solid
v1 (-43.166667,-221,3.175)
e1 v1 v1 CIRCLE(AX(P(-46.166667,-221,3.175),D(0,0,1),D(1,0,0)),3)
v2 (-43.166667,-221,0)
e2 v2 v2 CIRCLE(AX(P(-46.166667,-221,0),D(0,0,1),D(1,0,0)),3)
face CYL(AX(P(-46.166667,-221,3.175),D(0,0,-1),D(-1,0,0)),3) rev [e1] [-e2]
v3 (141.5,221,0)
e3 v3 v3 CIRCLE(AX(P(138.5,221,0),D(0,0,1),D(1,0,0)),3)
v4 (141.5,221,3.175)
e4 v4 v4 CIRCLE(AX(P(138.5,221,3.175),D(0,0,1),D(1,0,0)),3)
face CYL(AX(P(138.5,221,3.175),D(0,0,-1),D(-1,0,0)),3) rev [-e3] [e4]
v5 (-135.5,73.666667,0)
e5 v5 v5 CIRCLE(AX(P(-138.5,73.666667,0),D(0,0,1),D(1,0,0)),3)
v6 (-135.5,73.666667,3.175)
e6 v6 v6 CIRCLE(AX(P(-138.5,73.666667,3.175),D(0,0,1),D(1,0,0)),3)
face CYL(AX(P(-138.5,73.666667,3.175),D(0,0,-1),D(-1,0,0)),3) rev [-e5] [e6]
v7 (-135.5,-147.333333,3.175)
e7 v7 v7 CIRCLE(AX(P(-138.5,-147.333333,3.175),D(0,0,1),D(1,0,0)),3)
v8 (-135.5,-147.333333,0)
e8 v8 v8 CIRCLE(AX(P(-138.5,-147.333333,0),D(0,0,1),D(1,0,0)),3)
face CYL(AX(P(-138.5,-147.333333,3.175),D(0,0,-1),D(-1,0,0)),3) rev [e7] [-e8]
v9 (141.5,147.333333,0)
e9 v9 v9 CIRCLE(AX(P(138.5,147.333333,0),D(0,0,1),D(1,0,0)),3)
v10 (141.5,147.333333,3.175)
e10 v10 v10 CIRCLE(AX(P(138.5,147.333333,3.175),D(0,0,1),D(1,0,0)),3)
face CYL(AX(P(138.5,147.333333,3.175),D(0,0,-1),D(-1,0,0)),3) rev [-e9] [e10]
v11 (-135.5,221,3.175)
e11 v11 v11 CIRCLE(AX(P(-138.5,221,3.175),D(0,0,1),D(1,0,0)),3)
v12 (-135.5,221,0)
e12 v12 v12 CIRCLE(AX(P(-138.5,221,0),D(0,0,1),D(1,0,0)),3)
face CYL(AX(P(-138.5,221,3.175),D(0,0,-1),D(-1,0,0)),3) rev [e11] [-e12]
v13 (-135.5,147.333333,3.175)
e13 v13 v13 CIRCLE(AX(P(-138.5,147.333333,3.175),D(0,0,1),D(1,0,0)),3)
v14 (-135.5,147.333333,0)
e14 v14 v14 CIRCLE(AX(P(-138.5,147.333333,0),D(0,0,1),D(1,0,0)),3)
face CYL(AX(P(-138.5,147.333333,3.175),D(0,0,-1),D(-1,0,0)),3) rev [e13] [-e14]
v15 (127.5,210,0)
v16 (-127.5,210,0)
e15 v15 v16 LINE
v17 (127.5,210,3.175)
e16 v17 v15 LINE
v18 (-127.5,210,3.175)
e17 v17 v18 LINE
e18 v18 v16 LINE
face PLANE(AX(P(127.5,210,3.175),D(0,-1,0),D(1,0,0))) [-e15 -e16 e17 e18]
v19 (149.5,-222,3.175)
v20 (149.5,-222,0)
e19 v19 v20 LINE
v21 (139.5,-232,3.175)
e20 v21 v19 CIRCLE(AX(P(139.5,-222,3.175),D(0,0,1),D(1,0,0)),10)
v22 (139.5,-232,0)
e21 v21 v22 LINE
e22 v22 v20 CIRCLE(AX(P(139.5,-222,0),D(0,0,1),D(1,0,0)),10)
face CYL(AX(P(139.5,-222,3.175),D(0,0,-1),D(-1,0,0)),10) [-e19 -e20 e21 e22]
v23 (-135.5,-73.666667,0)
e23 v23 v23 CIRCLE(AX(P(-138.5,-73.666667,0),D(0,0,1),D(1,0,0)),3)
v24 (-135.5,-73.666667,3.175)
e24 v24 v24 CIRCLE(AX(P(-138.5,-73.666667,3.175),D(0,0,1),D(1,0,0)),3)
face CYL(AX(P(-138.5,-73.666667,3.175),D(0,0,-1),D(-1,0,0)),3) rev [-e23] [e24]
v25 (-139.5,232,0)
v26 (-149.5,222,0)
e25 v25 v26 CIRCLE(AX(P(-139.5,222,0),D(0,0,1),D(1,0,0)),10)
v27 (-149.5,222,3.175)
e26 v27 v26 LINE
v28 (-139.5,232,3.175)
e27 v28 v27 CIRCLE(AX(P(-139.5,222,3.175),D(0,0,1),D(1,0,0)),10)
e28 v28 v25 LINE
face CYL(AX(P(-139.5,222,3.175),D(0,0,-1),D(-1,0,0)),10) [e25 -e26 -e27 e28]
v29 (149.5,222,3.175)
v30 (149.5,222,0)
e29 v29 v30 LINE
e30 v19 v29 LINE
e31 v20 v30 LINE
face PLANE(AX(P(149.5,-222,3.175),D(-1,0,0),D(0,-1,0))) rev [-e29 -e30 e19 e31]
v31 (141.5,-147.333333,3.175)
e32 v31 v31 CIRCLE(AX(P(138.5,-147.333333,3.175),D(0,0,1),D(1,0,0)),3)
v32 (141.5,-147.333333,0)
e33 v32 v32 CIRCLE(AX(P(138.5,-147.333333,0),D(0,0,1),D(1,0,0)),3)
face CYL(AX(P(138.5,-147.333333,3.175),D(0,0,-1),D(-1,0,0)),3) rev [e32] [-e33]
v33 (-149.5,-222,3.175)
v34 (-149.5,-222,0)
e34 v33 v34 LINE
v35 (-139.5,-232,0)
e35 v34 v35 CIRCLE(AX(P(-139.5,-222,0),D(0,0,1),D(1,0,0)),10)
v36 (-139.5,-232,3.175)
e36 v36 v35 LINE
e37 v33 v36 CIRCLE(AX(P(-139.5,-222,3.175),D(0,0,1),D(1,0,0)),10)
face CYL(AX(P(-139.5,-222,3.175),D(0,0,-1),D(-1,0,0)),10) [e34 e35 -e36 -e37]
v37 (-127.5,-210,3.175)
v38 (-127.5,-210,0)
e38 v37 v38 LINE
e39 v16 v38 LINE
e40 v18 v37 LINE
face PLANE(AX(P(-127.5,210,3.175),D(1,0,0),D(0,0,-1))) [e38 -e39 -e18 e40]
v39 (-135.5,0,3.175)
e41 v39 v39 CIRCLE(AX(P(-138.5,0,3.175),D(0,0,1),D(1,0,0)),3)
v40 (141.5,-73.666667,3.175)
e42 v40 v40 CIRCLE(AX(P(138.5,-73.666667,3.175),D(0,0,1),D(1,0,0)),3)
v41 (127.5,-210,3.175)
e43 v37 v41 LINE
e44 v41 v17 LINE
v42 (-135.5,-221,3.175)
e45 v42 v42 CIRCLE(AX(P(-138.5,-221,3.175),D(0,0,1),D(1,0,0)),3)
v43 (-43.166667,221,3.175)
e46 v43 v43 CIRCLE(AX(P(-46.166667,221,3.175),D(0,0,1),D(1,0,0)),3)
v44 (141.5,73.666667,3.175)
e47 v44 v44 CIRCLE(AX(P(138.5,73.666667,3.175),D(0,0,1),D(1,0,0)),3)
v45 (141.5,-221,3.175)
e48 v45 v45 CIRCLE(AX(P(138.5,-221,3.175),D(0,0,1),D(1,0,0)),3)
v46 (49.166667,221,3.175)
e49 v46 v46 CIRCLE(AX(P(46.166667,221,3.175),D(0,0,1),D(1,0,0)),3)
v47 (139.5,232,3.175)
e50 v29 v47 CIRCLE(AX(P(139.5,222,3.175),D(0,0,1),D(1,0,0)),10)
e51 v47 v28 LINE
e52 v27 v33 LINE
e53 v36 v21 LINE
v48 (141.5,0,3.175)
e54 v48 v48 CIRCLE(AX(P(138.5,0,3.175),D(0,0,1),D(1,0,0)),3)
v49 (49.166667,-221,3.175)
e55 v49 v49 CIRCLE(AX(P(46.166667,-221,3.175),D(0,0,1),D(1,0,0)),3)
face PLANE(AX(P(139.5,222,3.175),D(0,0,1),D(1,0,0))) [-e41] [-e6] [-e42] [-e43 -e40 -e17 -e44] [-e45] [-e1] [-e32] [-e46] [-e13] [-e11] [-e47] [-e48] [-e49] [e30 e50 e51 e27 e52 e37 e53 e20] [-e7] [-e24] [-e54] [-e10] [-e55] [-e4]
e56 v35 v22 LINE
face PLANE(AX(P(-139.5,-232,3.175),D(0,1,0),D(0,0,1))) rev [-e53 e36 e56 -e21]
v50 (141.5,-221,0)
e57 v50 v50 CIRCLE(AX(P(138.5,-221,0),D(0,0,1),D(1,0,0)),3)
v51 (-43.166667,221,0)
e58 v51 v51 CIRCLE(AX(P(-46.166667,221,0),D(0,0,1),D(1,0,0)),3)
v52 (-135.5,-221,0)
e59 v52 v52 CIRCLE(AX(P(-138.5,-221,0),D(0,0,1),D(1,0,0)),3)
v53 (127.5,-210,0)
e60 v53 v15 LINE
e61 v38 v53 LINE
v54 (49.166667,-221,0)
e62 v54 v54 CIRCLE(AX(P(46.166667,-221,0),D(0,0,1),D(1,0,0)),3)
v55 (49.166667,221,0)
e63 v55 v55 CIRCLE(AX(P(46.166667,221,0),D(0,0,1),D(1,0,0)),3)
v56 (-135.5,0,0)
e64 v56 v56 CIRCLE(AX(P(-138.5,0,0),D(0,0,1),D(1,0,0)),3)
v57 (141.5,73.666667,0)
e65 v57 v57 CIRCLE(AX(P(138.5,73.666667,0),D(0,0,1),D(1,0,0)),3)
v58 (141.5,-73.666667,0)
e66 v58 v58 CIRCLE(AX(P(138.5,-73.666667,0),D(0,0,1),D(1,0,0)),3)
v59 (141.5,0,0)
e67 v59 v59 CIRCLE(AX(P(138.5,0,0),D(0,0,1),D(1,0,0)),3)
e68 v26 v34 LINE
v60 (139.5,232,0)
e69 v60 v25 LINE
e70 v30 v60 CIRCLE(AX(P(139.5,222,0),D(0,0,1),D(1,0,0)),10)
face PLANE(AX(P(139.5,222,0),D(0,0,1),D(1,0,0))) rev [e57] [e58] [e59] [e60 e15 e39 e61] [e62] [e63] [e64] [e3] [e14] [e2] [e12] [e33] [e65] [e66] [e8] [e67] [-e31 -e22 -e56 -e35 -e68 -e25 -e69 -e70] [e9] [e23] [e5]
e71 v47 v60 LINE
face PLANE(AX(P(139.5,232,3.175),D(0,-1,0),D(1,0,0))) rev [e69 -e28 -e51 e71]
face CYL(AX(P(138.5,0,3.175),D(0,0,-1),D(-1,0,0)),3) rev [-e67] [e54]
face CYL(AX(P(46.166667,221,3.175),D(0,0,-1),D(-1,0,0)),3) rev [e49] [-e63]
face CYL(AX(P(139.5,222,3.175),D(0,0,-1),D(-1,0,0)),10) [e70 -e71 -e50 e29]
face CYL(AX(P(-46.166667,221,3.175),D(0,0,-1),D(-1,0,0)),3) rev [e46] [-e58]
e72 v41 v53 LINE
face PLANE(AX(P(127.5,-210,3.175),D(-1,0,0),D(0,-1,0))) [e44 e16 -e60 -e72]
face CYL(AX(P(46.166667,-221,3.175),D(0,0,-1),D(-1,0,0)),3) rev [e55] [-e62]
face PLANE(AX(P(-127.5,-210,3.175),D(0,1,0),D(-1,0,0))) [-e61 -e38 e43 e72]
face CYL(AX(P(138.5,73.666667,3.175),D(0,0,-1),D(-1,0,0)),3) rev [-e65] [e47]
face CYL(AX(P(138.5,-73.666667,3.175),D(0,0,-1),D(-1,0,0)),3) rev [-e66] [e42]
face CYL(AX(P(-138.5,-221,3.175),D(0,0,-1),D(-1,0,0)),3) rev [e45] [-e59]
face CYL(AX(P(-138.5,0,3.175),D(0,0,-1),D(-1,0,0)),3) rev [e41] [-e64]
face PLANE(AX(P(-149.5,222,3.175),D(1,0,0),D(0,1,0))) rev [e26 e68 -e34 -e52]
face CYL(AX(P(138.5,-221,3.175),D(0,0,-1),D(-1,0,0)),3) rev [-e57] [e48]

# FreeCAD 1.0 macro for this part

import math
import FreeCAD as App
import Part
import Sketcher

V = App.Vector


def add_polygon(sketch, points):
    """Adds a closed chain of lines whose ends are joined by coincident constraints."""
    first, n = sketch.GeometryCount, len(points)
    for a, b in zip(points, points[1:] + points[:1]):
        sketch.addGeometry(Part.LineSegment(App.Vector(*a, 0), App.Vector(*b, 0)), False)
    for i in range(n):
        sketch.addConstraint(Sketcher.Constraint("Coincident", first + i, 2, first + (i + 1) % n, 1))

doc = App.newDocument("Part")
body = doc.addObject("PartDesign::Body", "Body")

# Sketch on XY plane
sketch1 = doc.addObject("Sketcher::SketchObject", "Sketch")
body.addObject(sketch1)
sketch1.AttachmentSupport = (doc.XY_Plane, [""])
sketch1.MapMode = "FlatFace"
sketch1.addGeometry(Part.LineSegment(V(139.5, 232, 0), V(-139.5, 232, 0)), False)  # 0
sketch1.addGeometry(Part.ArcOfCircle(Part.Circle(V(-139.5, 222, 0), V(0, 0, 1), 10), math.radians(90), math.radians(180)), False)  # 1
sketch1.addGeometry(Part.LineSegment(V(-149.5, 222, 0), V(-149.5, -222, 0)), False)  # 2
sketch1.addGeometry(Part.ArcOfCircle(Part.Circle(V(-139.5, -222, 0), V(0, 0, 1), 10), math.radians(180), math.radians(270)), False)  # 3
sketch1.addGeometry(Part.LineSegment(V(-139.5, -232, 0), V(139.5, -232, 0)), False)  # 4
sketch1.addGeometry(Part.ArcOfCircle(Part.Circle(V(139.5, -222, 0), V(0, 0, 1), 10), math.radians(-90), math.radians(0)), False)  # 5
sketch1.addGeometry(Part.LineSegment(V(149.5, -222, 0), V(149.5, 222, 0)), False)  # 6
sketch1.addGeometry(Part.ArcOfCircle(Part.Circle(V(139.5, 222, 0), V(0, 0, 1), 10), math.radians(0), math.radians(90)), False)  # 7
sketch1.addGeometry(Part.Circle(V(-138.5, -221, 0), V(0, 0, 1), 3), False)  # 8
sketch1.addGeometry(Part.Circle(V(-138.5, -147.333333, 0), V(0, 0, 1), 3), False)  # 9
sketch1.addGeometry(Part.Circle(V(-46.166667, -221, 0), V(0, 0, 1), 3), False)  # 10
sketch1.addGeometry(Part.Circle(V(-138.5, -73.666667, 0), V(0, 0, 1), 3), False)  # 11
sketch1.addGeometry(Part.Circle(V(46.166667, -221, 0), V(0, 0, 1), 3), False)  # 12
sketch1.addGeometry(Part.Circle(V(138.5, -221, 0), V(0, 0, 1), 3), False)  # 13
sketch1.addGeometry(Part.Circle(V(138.5, -147.333333, 0), V(0, 0, 1), 3), False)  # 14
sketch1.addGeometry(Part.Circle(V(138.5, -73.666667, 0), V(0, 0, 1), 3), False)  # 15
sketch1.addGeometry(Part.Circle(V(-138.5, 0, 0), V(0, 0, 1), 3), False)  # 16
sketch1.addGeometry(Part.Circle(V(-138.5, 73.666667, 0), V(0, 0, 1), 3), False)  # 17
sketch1.addGeometry(Part.Circle(V(-138.5, 147.333333, 0), V(0, 0, 1), 3), False)  # 18
sketch1.addGeometry(Part.Circle(V(-138.5, 221, 0), V(0, 0, 1), 3), False)  # 19
sketch1.addGeometry(Part.Circle(V(-46.166667, 221, 0), V(0, 0, 1), 3), False)  # 20
add_polygon(sketch1, [(127.5, -210), (-127.5, -210), (-127.5, 210), (127.5, 210)])  # lines 21-24
sketch1.addGeometry(Part.Circle(V(138.5, 0, 0), V(0, 0, 1), 3), False)  # 25
sketch1.addGeometry(Part.Circle(V(138.5, 73.666667, 0), V(0, 0, 1), 3), False)  # 26
sketch1.addGeometry(Part.Circle(V(46.166667, 221, 0), V(0, 0, 1), 3), False)  # 27
sketch1.addGeometry(Part.Circle(V(138.5, 147.333333, 0), V(0, 0, 1), 3), False)  # 28
sketch1.addGeometry(Part.Circle(V(138.5, 221, 0), V(0, 0, 1), 3), False)  # 29
sketch1.addConstraint(Sketcher.Constraint("Tangent", 0, 2, 1, 1))
sketch1.addConstraint(Sketcher.Constraint("Tangent", 1, 2, 2, 1))
sketch1.addConstraint(Sketcher.Constraint("Tangent", 2, 2, 3, 1))
sketch1.addConstraint(Sketcher.Constraint("Tangent", 3, 2, 4, 1))
sketch1.addConstraint(Sketcher.Constraint("Tangent", 4, 2, 5, 1))
sketch1.addConstraint(Sketcher.Constraint("Tangent", 5, 2, 6, 1))
sketch1.addConstraint(Sketcher.Constraint("Tangent", 6, 2, 7, 1))
sketch1.addConstraint(Sketcher.Constraint("Tangent", 7, 2, 0, 1))
sketch1.addConstraint(Sketcher.Constraint("Horizontal", 0))
sketch1.addConstraint(Sketcher.Constraint("Vertical", 2))
sketch1.addConstraint(Sketcher.Constraint("Horizontal", 4))
sketch1.addConstraint(Sketcher.Constraint("Vertical", 6))
sketch1.addConstraint(Sketcher.Constraint("Horizontal", 21))
sketch1.addConstraint(Sketcher.Constraint("Vertical", 22))
sketch1.addConstraint(Sketcher.Constraint("Horizontal", 23))
sketch1.addConstraint(Sketcher.Constraint("Vertical", 24))
sketch1.addConstraint(Sketcher.Constraint("Equal", 1, 3))
sketch1.addConstraint(Sketcher.Constraint("Equal", 3, 5))
sketch1.addConstraint(Sketcher.Constraint("Equal", 5, 7))
sketch1.addConstraint(Sketcher.Constraint("Equal", 8, 9))
sketch1.addConstraint(Sketcher.Constraint("Equal", 9, 10))
sketch1.addConstraint(Sketcher.Constraint("Equal", 10, 11))
sketch1.addConstraint(Sketcher.Constraint("Equal", 11, 12))
sketch1.addConstraint(Sketcher.Constraint("Equal", 12, 13))
sketch1.addConstraint(Sketcher.Constraint("Equal", 13, 14))
sketch1.addConstraint(Sketcher.Constraint("Equal", 14, 15))
sketch1.addConstraint(Sketcher.Constraint("Equal", 15, 16))
sketch1.addConstraint(Sketcher.Constraint("Equal", 16, 17))
sketch1.addConstraint(Sketcher.Constraint("Equal", 17, 18))
sketch1.addConstraint(Sketcher.Constraint("Equal", 18, 19))
sketch1.addConstraint(Sketcher.Constraint("Equal", 19, 20))
sketch1.addConstraint(Sketcher.Constraint("Equal", 20, 25))
sketch1.addConstraint(Sketcher.Constraint("Equal", 25, 26))
sketch1.addConstraint(Sketcher.Constraint("Equal", 26, 27))
sketch1.addConstraint(Sketcher.Constraint("Equal", 27, 28))
sketch1.addConstraint(Sketcher.Constraint("Equal", 28, 29))
sketch1.addConstraint(Sketcher.Constraint("Symmetric", 1, 3, 5, 3, -1, 1))
sketch1.addConstraint(Sketcher.Constraint("Symmetric", 15, 3, 17, 3, -1, 1))
sketch1.addConstraint(Sketcher.Constraint("Symmetric", 14, 3, 18, 3, -1, 1))
sketch1.addConstraint(Sketcher.Constraint("Symmetric", 13, 3, 19, 3, -1, 1))
sketch1.addConstraint(Sketcher.Constraint("Symmetric", 12, 3, 20, 3, -1, 1))
sketch1.addConstraint(Sketcher.Constraint("Symmetric", 16, 3, 25, 3, -1, 1))
sketch1.addConstraint(Sketcher.Constraint("Symmetric", 11, 3, 26, 3, -1, 1))
sketch1.addConstraint(Sketcher.Constraint("Symmetric", 10, 3, 27, 3, -1, 1))
sketch1.addConstraint(Sketcher.Constraint("Symmetric", 9, 3, 28, 3, -1, 1))
sketch1.addConstraint(Sketcher.Constraint("Symmetric", 8, 3, 29, 3, -1, 1))
sketch1.addConstraint(Sketcher.Constraint("Symmetric", 21, 2, 23, 2, -1, 1))
sketch1.addConstraint(Sketcher.Constraint("Symmetric", 10, 3, 12, 3, -2))
sketch1.addConstraint(Sketcher.Constraint("Symmetric", 8, 3, 13, 3, -2))
sketch1.addConstraint(Sketcher.Constraint("Symmetric", 9, 3, 14, 3, -2))
sketch1.addConstraint(Sketcher.Constraint("Symmetric", 11, 3, 15, 3, -2))
sketch1.addConstraint(Sketcher.Constraint("PointOnObject", 16, 3, -1))
sketch1.addConstraint(Sketcher.Constraint("Horizontal", 8, 3, 10, 3))
sketch1.addConstraint(Sketcher.Constraint("Vertical", 8, 3, 9, 3))
sketch1.addConstraint(Sketcher.Constraint("Vertical", 9, 3, 11, 3))
sketch1.addConstraint(Sketcher.Constraint("Vertical", 11, 3, 16, 3))
sketch1.addConstraint(Sketcher.Constraint("Diameter", 8, 6.0))
sketch1.addConstraint(Sketcher.Constraint("Radius", 1, 10.0))
sketch1.addConstraint(Sketcher.Constraint("DistanceX", 0, 2, 0, 1, 279.0))
sketch1.addConstraint(Sketcher.Constraint("DistanceX", 21, 2, 21, 1, 255.0))
sketch1.addConstraint(Sketcher.Constraint("DistanceY", 2, 2, 2, 1, 444.0))
sketch1.addConstraint(Sketcher.Constraint("DistanceY", 22, 1, 22, 2, 420.0))
sketch1.addConstraint(Sketcher.Constraint("DistanceY", 8, 3, -1, 1, 221.0))
sketch1.addConstraint(Sketcher.Constraint("DistanceX", 3, 3, 8, 3, 1.0))
sketch1.addConstraint(Sketcher.Constraint("DistanceY", 9, 3, 17, 3, 221.0))
sketch1.addConstraint(Sketcher.Constraint("DistanceY", 9, 3, -1, 1, 147.333333))
sketch1.addConstraint(Sketcher.Constraint("DistanceX", 10, 3, -1, 1, 46.166667))
pad1 = doc.addObject("PartDesign::Pad", "Pad")
body.addObject(pad1)
pad1.Profile = sketch1
pad1.Length = 3.175

doc.recompute()
